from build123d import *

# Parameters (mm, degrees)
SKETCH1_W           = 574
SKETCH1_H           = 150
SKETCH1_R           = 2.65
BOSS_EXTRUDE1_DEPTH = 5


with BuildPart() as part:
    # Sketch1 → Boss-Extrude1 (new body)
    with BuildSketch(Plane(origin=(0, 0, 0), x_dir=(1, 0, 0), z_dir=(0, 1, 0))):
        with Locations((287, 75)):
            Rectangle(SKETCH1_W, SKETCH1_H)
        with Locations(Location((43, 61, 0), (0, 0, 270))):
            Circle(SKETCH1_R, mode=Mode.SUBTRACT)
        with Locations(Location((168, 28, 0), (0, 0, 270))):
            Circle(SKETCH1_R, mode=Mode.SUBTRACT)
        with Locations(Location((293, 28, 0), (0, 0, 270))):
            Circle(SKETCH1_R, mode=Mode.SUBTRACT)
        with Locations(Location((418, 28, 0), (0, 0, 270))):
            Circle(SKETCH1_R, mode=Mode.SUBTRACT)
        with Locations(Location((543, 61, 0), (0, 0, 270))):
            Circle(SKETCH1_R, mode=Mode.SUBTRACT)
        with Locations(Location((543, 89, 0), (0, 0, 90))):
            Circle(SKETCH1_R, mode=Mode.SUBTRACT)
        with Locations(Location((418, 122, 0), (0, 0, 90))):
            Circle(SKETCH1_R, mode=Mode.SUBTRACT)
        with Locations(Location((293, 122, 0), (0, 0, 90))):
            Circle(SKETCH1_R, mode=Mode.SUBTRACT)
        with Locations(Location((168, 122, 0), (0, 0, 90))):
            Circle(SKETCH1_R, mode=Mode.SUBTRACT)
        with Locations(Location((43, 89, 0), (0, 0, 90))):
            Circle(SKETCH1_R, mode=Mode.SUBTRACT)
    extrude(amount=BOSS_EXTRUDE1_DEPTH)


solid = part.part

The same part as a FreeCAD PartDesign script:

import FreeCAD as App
import Part
import Sketcher

V = App.Vector
Q = App.Units.Quantity

doc = App.newDocument("Part")
body = doc.addObject("PartDesign::Body", "Body")

sketch1 = doc.addObject("Sketcher::SketchObject", "Sketch")
body.addObject(sketch1)
sketch1.AttachmentSupport = (doc.XZ_Plane, [""])
sketch1.MapMode = "FlatFace"
sketch1.addGeometry([
    Part.LineSegment(V(0, -150, 0), V(0, 0, 0)),
    Part.LineSegment(V(0, 0, 0), V(574, 0, 0)),
    Part.LineSegment(V(574, 0, 0), V(574, -150, 0)),
    Part.LineSegment(V(574, -150, 0), V(0, -150, 0)),
    Part.Circle(V(168, -28, 0), V(0, 0, 1), 2.6),
    Part.Circle(V(43, -61, 0), V(0, 0, 1), 2.6),
    Part.Circle(V(293, -28, 0), V(0, 0, 1), 2.6),
    Part.Circle(V(418, -28, 0), V(0, 0, 1), 2.6),
    Part.Circle(V(543, -61, 0), V(0, 0, 1), 2.6),
    Part.Circle(V(43, -89, 0), V(0, 0, 1), 2.6),
    Part.Circle(V(168, -122, 0), V(0, 0, 1), 2.6),
    Part.Circle(V(543, -89, 0), V(0, 0, 1), 2.6),
    Part.Circle(V(293, -122, 0), V(0, 0, 1), 2.6),
    Part.Circle(V(418, -122, 0), V(0, 0, 1), 2.6),
], False)
sketch1.addConstraint([
    Sketcher.Constraint("Coincident", 0, 2, 1, 1),
    Sketcher.Constraint("Coincident", 1, 2, 2, 1),
    Sketcher.Constraint("Coincident", 2, 2, 3, 1),
    Sketcher.Constraint("Coincident", 3, 2, 0, 1),
    Sketcher.Constraint("Vertical", 0),
    Sketcher.Constraint("Horizontal", 1),
    Sketcher.Constraint("Vertical", 2),
    Sketcher.Constraint("Horizontal", 3),
    Sketcher.Constraint("Coincident", 0, 2, -1, 1),
    Sketcher.Constraint("Equal", 4, 5),
    Sketcher.Constraint("Equal", 5, 6),
    Sketcher.Constraint("Equal", 6, 7),
    Sketcher.Constraint("Equal", 7, 8),
    Sketcher.Constraint("Equal", 8, 9),
    Sketcher.Constraint("Equal", 9, 10),
    Sketcher.Constraint("Equal", 10, 11),
    Sketcher.Constraint("Equal", 11, 12),
    Sketcher.Constraint("Equal", 12, 13),
    Sketcher.Constraint("Horizontal", 4, 3, 6, 3),
    Sketcher.Constraint("Horizontal", 6, 3, 7, 3),
    Sketcher.Constraint("Horizontal", 5, 3, 8, 3),
    Sketcher.Constraint("Horizontal", 9, 3, 11, 3),
    Sketcher.Constraint("Horizontal", 10, 3, 12, 3),
    Sketcher.Constraint("Horizontal", 12, 3, 13, 3),
    Sketcher.Constraint("Vertical", 5, 3, 9, 3),
    Sketcher.Constraint("Vertical", 4, 3, 10, 3),
    Sketcher.Constraint("Vertical", 8, 3, 11, 3),
    Sketcher.Constraint("Vertical", 6, 3, 12, 3),
    Sketcher.Constraint("Vertical", 7, 3, 13, 3),
    Sketcher.Constraint("Diameter", 4, Q("5.3 mm")),
    Sketcher.Constraint("DistanceX", 1, 1, 1, 2, Q("574 mm")),
    Sketcher.Constraint("DistanceY", 0, 1, 0, 2, Q("150 mm")),
    Sketcher.Constraint("DistanceX", -1, 1, 4, 3, Q("168 mm")),
    Sketcher.Constraint("DistanceY", 4, 3, -1, 1, Q("28 mm")),
    Sketcher.Constraint("DistanceX", -1, 1, 5, 3, Q("43 mm")),
    Sketcher.Constraint("DistanceY", 5, 3, -1, 1, Q("61 mm")),
    Sketcher.Constraint("DistanceX", -1, 1, 6, 3, Q("293 mm")),
    Sketcher.Constraint("DistanceX", -1, 1, 7, 3, Q("418 mm")),
    Sketcher.Constraint("DistanceX", -1, 1, 8, 3, Q("543 mm")),
    Sketcher.Constraint("DistanceY", 9, 3, -1, 1, Q("89 mm")),
    Sketcher.Constraint("DistanceY", 10, 3, -1, 1, Q("122 mm")),
])
pad1 = doc.addObject("PartDesign::Pad", "Pad")
body.addObject(pad1)
pad1.Profile = sketch1
pad1.Length = 5
pad1.Reversed = True

doc.recompute()
